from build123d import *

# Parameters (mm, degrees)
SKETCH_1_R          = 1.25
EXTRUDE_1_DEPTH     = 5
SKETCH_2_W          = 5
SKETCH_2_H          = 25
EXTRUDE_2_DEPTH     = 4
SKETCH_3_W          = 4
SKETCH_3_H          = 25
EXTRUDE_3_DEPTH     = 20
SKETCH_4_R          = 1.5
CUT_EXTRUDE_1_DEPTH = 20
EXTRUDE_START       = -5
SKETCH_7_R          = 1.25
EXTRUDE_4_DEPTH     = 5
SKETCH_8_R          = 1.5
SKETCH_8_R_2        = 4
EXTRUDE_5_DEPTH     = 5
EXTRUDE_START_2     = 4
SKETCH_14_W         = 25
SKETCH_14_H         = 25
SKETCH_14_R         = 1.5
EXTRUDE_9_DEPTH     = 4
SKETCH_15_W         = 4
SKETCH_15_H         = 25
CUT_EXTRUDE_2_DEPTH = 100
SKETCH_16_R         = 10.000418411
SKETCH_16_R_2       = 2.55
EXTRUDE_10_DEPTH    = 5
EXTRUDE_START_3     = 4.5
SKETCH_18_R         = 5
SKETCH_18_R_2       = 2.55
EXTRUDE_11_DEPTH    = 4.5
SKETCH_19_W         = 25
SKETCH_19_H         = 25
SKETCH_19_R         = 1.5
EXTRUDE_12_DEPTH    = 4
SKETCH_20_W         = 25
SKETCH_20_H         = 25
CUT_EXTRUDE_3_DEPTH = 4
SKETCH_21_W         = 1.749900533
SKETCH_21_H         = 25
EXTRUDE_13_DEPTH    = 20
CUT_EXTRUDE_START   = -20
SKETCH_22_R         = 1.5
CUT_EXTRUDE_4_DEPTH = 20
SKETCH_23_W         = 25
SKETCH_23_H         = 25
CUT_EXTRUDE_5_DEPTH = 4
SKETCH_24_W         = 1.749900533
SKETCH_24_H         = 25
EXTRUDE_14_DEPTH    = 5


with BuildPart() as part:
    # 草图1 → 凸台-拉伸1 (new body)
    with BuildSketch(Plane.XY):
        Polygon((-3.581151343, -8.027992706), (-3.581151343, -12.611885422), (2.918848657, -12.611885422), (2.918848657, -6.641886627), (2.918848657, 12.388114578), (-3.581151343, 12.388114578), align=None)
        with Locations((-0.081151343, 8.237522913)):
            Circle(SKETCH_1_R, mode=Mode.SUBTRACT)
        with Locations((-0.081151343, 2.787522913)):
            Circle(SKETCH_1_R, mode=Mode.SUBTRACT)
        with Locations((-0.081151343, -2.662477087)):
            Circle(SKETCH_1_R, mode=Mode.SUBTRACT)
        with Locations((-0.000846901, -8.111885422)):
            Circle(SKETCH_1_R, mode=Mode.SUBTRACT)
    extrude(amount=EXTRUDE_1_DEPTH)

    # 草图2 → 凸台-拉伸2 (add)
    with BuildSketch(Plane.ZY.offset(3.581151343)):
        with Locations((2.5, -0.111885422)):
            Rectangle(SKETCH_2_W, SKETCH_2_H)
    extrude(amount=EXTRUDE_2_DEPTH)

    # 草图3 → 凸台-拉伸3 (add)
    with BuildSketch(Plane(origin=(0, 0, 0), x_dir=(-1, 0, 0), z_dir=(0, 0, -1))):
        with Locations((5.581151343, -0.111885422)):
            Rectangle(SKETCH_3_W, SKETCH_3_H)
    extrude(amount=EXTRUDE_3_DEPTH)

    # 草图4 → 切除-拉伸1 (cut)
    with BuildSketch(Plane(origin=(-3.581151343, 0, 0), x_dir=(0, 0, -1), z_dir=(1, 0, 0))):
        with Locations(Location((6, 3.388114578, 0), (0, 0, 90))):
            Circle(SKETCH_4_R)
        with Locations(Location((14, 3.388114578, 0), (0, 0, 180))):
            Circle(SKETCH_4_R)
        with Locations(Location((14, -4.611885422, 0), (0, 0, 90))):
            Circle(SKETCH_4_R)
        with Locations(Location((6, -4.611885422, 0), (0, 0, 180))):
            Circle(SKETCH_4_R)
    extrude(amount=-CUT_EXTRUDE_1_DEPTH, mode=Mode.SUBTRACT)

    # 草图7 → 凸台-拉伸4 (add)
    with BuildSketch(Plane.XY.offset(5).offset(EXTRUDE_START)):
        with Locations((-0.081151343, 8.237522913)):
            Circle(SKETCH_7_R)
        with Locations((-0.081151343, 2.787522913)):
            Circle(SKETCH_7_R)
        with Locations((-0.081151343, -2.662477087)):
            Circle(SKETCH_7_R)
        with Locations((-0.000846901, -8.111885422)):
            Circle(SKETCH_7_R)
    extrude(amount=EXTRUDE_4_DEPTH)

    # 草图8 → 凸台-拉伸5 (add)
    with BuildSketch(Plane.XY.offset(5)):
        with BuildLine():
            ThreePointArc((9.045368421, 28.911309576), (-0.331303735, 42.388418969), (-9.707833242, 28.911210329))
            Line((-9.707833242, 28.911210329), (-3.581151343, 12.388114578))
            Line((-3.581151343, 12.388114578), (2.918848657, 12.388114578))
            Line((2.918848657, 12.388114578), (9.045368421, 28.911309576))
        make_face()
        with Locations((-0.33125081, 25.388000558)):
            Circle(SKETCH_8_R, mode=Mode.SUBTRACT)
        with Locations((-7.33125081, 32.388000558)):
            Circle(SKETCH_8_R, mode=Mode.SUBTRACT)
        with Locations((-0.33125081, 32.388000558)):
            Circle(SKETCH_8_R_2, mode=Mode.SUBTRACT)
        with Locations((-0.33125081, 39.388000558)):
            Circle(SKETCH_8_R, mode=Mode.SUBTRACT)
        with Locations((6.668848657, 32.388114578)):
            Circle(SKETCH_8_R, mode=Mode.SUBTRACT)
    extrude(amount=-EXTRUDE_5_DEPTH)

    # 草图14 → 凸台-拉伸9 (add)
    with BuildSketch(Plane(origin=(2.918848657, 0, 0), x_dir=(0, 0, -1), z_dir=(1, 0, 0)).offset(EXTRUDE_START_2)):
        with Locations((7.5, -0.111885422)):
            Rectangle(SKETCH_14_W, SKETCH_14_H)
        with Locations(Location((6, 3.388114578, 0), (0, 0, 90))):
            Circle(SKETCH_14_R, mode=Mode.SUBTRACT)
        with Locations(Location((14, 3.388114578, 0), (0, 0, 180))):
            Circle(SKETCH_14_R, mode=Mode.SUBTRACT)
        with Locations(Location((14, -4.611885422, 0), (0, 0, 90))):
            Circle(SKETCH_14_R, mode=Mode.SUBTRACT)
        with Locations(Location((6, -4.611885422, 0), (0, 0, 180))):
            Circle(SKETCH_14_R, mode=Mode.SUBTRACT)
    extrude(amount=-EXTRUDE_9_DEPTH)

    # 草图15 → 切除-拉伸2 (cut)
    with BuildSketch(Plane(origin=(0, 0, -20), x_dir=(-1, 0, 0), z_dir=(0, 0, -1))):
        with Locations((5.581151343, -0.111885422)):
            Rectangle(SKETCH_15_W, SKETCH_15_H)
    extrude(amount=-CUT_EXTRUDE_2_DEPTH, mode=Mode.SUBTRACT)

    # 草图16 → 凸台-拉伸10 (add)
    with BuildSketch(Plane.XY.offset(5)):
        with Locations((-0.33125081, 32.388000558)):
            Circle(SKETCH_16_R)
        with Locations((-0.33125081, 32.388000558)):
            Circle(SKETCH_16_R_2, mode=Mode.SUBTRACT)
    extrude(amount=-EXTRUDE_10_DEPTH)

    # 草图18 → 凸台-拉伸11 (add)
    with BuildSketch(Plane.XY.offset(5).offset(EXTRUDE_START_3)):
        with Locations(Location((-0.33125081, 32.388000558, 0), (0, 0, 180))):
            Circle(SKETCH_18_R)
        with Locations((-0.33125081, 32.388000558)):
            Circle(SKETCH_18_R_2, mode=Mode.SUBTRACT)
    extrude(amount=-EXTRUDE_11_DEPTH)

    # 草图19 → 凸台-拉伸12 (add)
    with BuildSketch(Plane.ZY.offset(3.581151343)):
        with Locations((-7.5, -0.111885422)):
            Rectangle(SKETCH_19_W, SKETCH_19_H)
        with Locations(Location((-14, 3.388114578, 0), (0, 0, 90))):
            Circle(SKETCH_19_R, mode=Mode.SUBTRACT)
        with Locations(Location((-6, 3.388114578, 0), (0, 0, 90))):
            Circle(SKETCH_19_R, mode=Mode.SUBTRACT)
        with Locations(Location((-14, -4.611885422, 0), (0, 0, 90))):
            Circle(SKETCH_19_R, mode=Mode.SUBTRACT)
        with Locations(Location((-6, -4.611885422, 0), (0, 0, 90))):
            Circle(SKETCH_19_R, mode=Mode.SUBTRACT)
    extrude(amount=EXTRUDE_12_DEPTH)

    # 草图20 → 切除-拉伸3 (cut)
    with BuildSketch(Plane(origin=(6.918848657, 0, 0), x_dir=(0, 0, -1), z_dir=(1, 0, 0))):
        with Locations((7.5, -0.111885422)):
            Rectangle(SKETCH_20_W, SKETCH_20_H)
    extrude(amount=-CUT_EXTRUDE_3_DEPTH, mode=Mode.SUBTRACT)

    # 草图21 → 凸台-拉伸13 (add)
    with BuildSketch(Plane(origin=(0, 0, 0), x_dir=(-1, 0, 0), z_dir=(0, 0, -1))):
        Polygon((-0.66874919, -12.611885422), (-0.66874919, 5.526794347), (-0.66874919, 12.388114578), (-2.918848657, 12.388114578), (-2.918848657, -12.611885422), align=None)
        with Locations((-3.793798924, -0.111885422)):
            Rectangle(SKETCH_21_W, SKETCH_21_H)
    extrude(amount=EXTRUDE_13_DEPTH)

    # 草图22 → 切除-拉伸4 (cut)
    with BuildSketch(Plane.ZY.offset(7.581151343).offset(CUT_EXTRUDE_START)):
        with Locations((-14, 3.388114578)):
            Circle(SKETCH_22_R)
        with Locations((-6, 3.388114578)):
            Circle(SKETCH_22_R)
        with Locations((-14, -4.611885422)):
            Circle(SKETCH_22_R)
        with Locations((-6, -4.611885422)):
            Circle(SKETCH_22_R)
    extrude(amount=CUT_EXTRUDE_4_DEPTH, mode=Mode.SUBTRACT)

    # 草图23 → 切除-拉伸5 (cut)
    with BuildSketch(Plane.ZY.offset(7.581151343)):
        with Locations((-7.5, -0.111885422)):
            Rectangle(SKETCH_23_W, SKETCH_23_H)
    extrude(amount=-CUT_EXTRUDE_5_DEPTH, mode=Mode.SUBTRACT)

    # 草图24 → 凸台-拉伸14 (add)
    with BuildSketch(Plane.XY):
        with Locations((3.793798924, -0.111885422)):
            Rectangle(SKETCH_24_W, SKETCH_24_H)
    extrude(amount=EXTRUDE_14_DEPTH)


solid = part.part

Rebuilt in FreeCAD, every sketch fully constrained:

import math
import FreeCAD as App
import Part
import Sketcher
Q = App.Units.Quantity


def add_polygon(sketch, points):
    """Adds a closed chain of lines whose ends are joined by coincident constraints."""
    first, n = sketch.GeometryCount, len(points)
    for a, b in zip(points, points[1:] + points[:1]):
        sketch.addGeometry(Part.LineSegment(App.Vector(*a, 0), App.Vector(*b, 0)), False)
    for i in range(n):
        sketch.addConstraint(Sketcher.Constraint("Coincident", first + i, 2, first + (i + 1) % n, 1))

doc = App.newDocument("Part")
body = doc.addObject("PartDesign::Body", "Body")

sketch1 = doc.addObject("Sketcher::SketchObject", "Sketch")
body.addObject(sketch1)
sketch1.AttachmentSupport = (doc.XY_Plane, [""])
sketch1.MapMode = "FlatFace"
add_polygon(sketch1, [(-3.6, -12.6), (2.9, -12.6), (2.9, 12.4), (-3.6, 12.4)])
sketch1.addGeometry(Part.Circle(App.Vector(-0.1, -2.7, 0), App.Vector(0, 0, 1), 1.2), False)
sketch1.addGeometry(Part.Circle(App.Vector(0, -8.1, 0), App.Vector(0, 0, 1), 1.2), False)
sketch1.addGeometry(Part.Circle(App.Vector(-0.1, 2.8, 0), App.Vector(0, 0, 1), 1.2), False)
sketch1.addGeometry(Part.Circle(App.Vector(-0.1, 8.2, 0), App.Vector(0, 0, 1), 1.2), False)
sketch1.addConstraint(Sketcher.Constraint("Horizontal", 0))
sketch1.addConstraint(Sketcher.Constraint("Vertical", 1))
sketch1.addConstraint(Sketcher.Constraint("Horizontal", 2))
sketch1.addConstraint(Sketcher.Constraint("Vertical", 3))
sketch1.addConstraint(Sketcher.Constraint("Equal", 4, 5))
sketch1.addConstraint(Sketcher.Constraint("Equal", 5, 6))
sketch1.addConstraint(Sketcher.Constraint("Equal", 6, 7))
sketch1.addConstraint(Sketcher.Constraint("Vertical", 4, 3, 6, 3))
sketch1.addConstraint(Sketcher.Constraint("Vertical", 6, 3, 7, 3))
sketch1.addConstraint(Sketcher.Constraint("Diameter", 4, Q("2.5 mm")))
sketch1.addConstraint(Sketcher.Constraint("DistanceY", 1, 1, 1, 2, Q("25 mm")))
sketch1.addConstraint(Sketcher.Constraint("DistanceX", 0, 1, 0, 2, Q("6.5 mm")))
sketch1.addConstraint(Sketcher.Constraint("DistanceX", 4, 3, 0, 2, Q("3 mm")))
sketch1.addConstraint(Sketcher.Constraint("DistanceY", 4, 3, 7, 3, Q("10.9 mm")))
sketch1.addConstraint(Sketcher.Constraint("DistanceY", 0, 2, 5, 3, Q("4.5 mm")))
sketch1.addConstraint(Sketcher.Constraint("DistanceY", 4, 3, 6, 3, Q("5.45 mm")))
sketch1.addConstraint(Sketcher.Constraint("DistanceX", 4, 3, -1, 1, Q("0.081151 mm")))
sketch1.addConstraint(Sketcher.Constraint("DistanceY", 5, 3, 4, 3, Q("5.449408 mm")))
sketch1.addConstraint(Sketcher.Constraint("DistanceY", 4, 3, -1, 1, Q("2.662477 mm")))
sketch1.addConstraint(Sketcher.Constraint("DistanceX", 5, 3, -1, 1, Q("0.000847 mm")))
pad1 = doc.addObject("PartDesign::Pad", "Pad")
body.addObject(pad1)
pad1.Profile = sketch1
pad1.Length = 5

sketch2 = doc.addObject("Sketcher::SketchObject", "Sketch001")
body.addObject(sketch2)
sketch2.AttachmentSupport = (doc.YZ_Plane, [""])
sketch2.MapMode = "FlatFace"
sketch2.AttachmentOffset = App.Placement(App.Vector(0, 0, -3.581151), App.Rotation())
add_polygon(sketch2, [(12, 0), (-13, 0), (-13, 5), (12, 5)])
sketch2.addConstraint(Sketcher.Constraint("Horizontal", 0))
sketch2.addConstraint(Sketcher.Constraint("Vertical", 1))
sketch2.addConstraint(Sketcher.Constraint("Horizontal", 2))
sketch2.addConstraint(Sketcher.Constraint("Vertical", 3))
sketch2.addConstraint(Sketcher.Constraint("PointOnObject", 0, 2, -1))
sketch2.addConstraint(Sketcher.Constraint("DistanceX", 0, 2, 0, 1, Q("25 mm")))
sketch2.addConstraint(Sketcher.Constraint("DistanceY", 1, 1, 1, 2, Q("5 mm")))
sketch2.addConstraint(Sketcher.Constraint("DistanceX", 0, 2, -1, 1, Q("12.611885 mm")))
pad2 = doc.addObject("PartDesign::Pad", "Pad001")
body.addObject(pad2)
pad2.Profile = sketch2
pad2.Length = 4
pad2.Reversed = True

sketch3 = doc.addObject("Sketcher::SketchObject", "Sketch002")
body.addObject(sketch3)
sketch3.AttachmentSupport = (doc.XY_Plane, [""])
sketch3.MapMode = "FlatFace"
add_polygon(sketch3, [(-3.6, 12.4), (-3.6, -12.6), (-7.6, -12.6), (-7.6, 12.4)])
sketch3.addConstraint(Sketcher.Constraint("Vertical", 0))
sketch3.addConstraint(Sketcher.Constraint("Horizontal", 1))
sketch3.addConstraint(Sketcher.Constraint("Vertical", 2))
sketch3.addConstraint(Sketcher.Constraint("Horizontal", 3))
sketch3.addConstraint(Sketcher.Constraint("DistanceX", 1, 2, 1, 1, Q("4 mm")))
sketch3.addConstraint(Sketcher.Constraint("DistanceY", 0, 2, 0, 1, Q("25 mm")))
sketch3.addConstraint(Sketcher.Constraint("DistanceX", 0, 2, -1, 1, Q("3.581151 mm")))
sketch3.addConstraint(Sketcher.Constraint("DistanceY", 0, 2, -1, 1, Q("12.611885 mm")))
pad3 = doc.addObject("PartDesign::Pad", "Pad002")
body.addObject(pad3)
pad3.Profile = sketch3
pad3.Length = 20
pad3.Reversed = True

sketch4 = doc.addObject("Sketcher::SketchObject", "Sketch003")
body.addObject(sketch4)
sketch4.AttachmentSupport = (doc.YZ_Plane, [""])
sketch4.MapMode = "FlatFace"
sketch4.AttachmentOffset = App.Placement(App.Vector(0, 0, -3.581151), App.Rotation())
sketch4.addGeometry(Part.Circle(App.Vector(3.4, -6, 0), App.Vector(0, 0, 1), 1.5), False)
sketch4.addGeometry(Part.Circle(App.Vector(3.4, -14, 0), App.Vector(0, 0, 1), 1.5), False)
sketch4.addGeometry(Part.Circle(App.Vector(-4.6, -14, 0), App.Vector(0, 0, 1), 1.5), False)
sketch4.addGeometry(Part.Circle(App.Vector(-4.6, -6, 0), App.Vector(0, 0, 1), 1.5), False)
sketch4.addConstraint(Sketcher.Constraint("Equal", 0, 1))
sketch4.addConstraint(Sketcher.Constraint("Equal", 1, 2))
sketch4.addConstraint(Sketcher.Constraint("Equal", 2, 3))
sketch4.addConstraint(Sketcher.Constraint("Horizontal", 1, 3, 2, 3))
sketch4.addConstraint(Sketcher.Constraint("Horizontal", 0, 3, 3, 3))
sketch4.addConstraint(Sketcher.Constraint("Vertical", 0, 3, 1, 3))
sketch4.addConstraint(Sketcher.Constraint("Vertical", 2, 3, 3, 3))
sketch4.addConstraint(Sketcher.Constraint("Diameter", 0, Q("3 mm")))
sketch4.addConstraint(Sketcher.Constraint("DistanceY", 0, 3, -1, 1, Q("6 mm")))
sketch4.addConstraint(Sketcher.Constraint("DistanceY", 1, 3, -1, 1, Q("14 mm")))
sketch4.addConstraint(Sketcher.Constraint("DistanceX", 2, 3, 1, 3, Q("8 mm")))
sketch4.addConstraint(Sketcher.Constraint("DistanceX", -1, 1, 0, 3, Q("3.388115 mm")))
pocket1 = doc.addObject("PartDesign::Pocket", "Pocket")
body.addObject(pocket1)
pocket1.Profile = sketch4
pocket1.Length = 20

sketch5 = doc.addObject("Sketcher::SketchObject", "Sketch004")
body.addObject(sketch5)
sketch5.AttachmentSupport = (doc.XY_Plane, [""])
sketch5.MapMode = "FlatFace"
sketch5.addGeometry(Part.Circle(App.Vector(-0.1, 8.2, 0), App.Vector(0, 0, 1), 1.2), False)
sketch5.addGeometry(Part.Circle(App.Vector(-0.1, 2.8, 0), App.Vector(0, 0, 1), 1.2), False)
sketch5.addGeometry(Part.Circle(App.Vector(-0.1, -2.7, 0), App.Vector(0, 0, 1), 1.2), False)
sketch5.addGeometry(Part.Circle(App.Vector(0, -8.1, 0), App.Vector(0, 0, 1), 1.2), False)
sketch5.addConstraint(Sketcher.Constraint("Equal", 0, 1))
sketch5.addConstraint(Sketcher.Constraint("Equal", 1, 2))
sketch5.addConstraint(Sketcher.Constraint("Equal", 2, 3))
sketch5.addConstraint(Sketcher.Constraint("Vertical", 0, 3, 1, 3))
sketch5.addConstraint(Sketcher.Constraint("Vertical", 1, 3, 2, 3))
sketch5.addConstraint(Sketcher.Constraint("Diameter", 0, Q("2.5 mm")))
sketch5.addConstraint(Sketcher.Constraint("DistanceY", 2, 3, 0, 3, Q("10.9 mm")))
sketch5.addConstraint(Sketcher.Constraint("DistanceY", 1, 3, 0, 3, Q("5.45 mm")))
sketch5.addConstraint(Sketcher.Constraint("DistanceX", 0, 3, -1, 1, Q("0.081151 mm")))
sketch5.addConstraint(Sketcher.Constraint("DistanceY", 3, 3, 2, 3, Q("5.449408 mm")))
sketch5.addConstraint(Sketcher.Constraint("DistanceY", -1, 1, 0, 3, Q("8.237523 mm")))
sketch5.addConstraint(Sketcher.Constraint("DistanceX", 3, 3, -1, 1, Q("0.000847 mm")))
pad4 = doc.addObject("PartDesign::Pad", "Pad003")
body.addObject(pad4)
pad4.Profile = sketch5
pad4.Length = 5

sketch6 = doc.addObject("Sketcher::SketchObject", "Sketch005")
body.addObject(sketch6)
sketch6.AttachmentSupport = (doc.XY_Plane, [""])
sketch6.MapMode = "FlatFace"
sketch6.AttachmentOffset = App.Placement(App.Vector(0, 0, 5), App.Rotation())
sketch6.addGeometry(Part.ArcOfCircle(Part.Circle(App.Vector(-0.3, 32.4, 0), App.Vector(0, 0, 1), 10), math.radians(-20), math.radians(200)), False)
sketch6.addGeometry(Part.LineSegment(App.Vector(-9.7, 28.9, 0), App.Vector(-3.6, 12.4, 0)), False)
sketch6.addGeometry(Part.LineSegment(App.Vector(-3.6, 12.4, 0), App.Vector(2.9, 12.4, 0)), False)
sketch6.addGeometry(Part.LineSegment(App.Vector(2.9, 12.4, 0), App.Vector(9, 28.9, 0)), False)
sketch6.addGeometry(Part.Circle(App.Vector(-0.3, 25.4, 0), App.Vector(0, 0, 1), 1.5), False)
sketch6.addGeometry(Part.Circle(App.Vector(-7.3, 32.4, 0), App.Vector(0, 0, 1), 1.5), False)
sketch6.addGeometry(Part.Circle(App.Vector(-0.3, 32.4, 0), App.Vector(0, 0, 1), 4), False)
sketch6.addGeometry(Part.Circle(App.Vector(-0.3, 39.4, 0), App.Vector(0, 0, 1), 1.5), False)
sketch6.addGeometry(Part.Circle(App.Vector(6.7, 32.4, 0), App.Vector(0, 0, 1), 1.5), False)
sketch6.addConstraint(Sketcher.Constraint("Tangent", 0, 2, 1, 1))
sketch6.addConstraint(Sketcher.Constraint("Coincident", 1, 2, 2, 1))
sketch6.addConstraint(Sketcher.Constraint("Coincident", 2, 2, 3, 1))
sketch6.addConstraint(Sketcher.Constraint("Tangent", 3, 2, 0, 1))
sketch6.addConstraint(Sketcher.Constraint("Horizontal", 2))
sketch6.addConstraint(Sketcher.Constraint("Coincident", 6, 3, 0, 3))
sketch6.addConstraint(Sketcher.Constraint("Equal", 4, 5))
sketch6.addConstraint(Sketcher.Constraint("Equal", 5, 7))
sketch6.addConstraint(Sketcher.Constraint("Equal", 7, 8))
sketch6.addConstraint(Sketcher.Constraint("Horizontal", 0, 3, 5, 3))
sketch6.addConstraint(Sketcher.Constraint("Vertical", 0, 3, 4, 3))
sketch6.addConstraint(Sketcher.Constraint("Vertical", 6, 3, 7, 3))
sketch6.addConstraint(Sketcher.Constraint("Diameter", 4, Q("3 mm")))
sketch6.addConstraint(Sketcher.Constraint("Diameter", 6, Q("8 mm")))
sketch6.addConstraint(Sketcher.Constraint("DistanceX", 2, 1, 2, 2, Q("6.5 mm")))
sketch6.addConstraint(Sketcher.Constraint("DistanceY", 4, 3, 0, 3, Q("7 mm")))
sketch6.addConstraint(Sketcher.Constraint("DistanceX", 5, 3, 0, 3, Q("7 mm")))
sketch6.addConstraint(Sketcher.Constraint("DistanceY", 0, 3, 7, 3, Q("7 mm")))
sketch6.addConstraint(Sketcher.Constraint("DistanceY", 2, 2, 8, 3, Q("20 mm")))
sketch6.addConstraint(Sketcher.Constraint("Radius", 0, Q("10.000418 mm")))
sketch6.addConstraint(Sketcher.Constraint("DistanceX", 2, 2, 8, 3, Q("3.75 mm")))
sketch6.addConstraint(Sketcher.Constraint("DistanceY", -1, 1, 0, 3, Q("32.388001 mm")))
sketch6.addConstraint(Sketcher.Constraint("Distance", 1, Q("17.622398 mm")))
sketch6.addConstraint(Sketcher.Constraint("DistanceX", 0, 3, 8, 3, Q("7.000099 mm")))
sketch6.addConstraint(Sketcher.Constraint("DistanceX", 0, 3, -1, 1, Q("0.331251 mm")))
pad5 = doc.addObject("PartDesign::Pad", "Pad004")
body.addObject(pad5)
pad5.Profile = sketch6
pad5.Length = 5
pad5.Reversed = True

sketch7 = doc.addObject("Sketcher::SketchObject", "Sketch006")
body.addObject(sketch7)
sketch7.AttachmentSupport = (doc.YZ_Plane, [""])
sketch7.MapMode = "FlatFace"
sketch7.AttachmentOffset = App.Placement(App.Vector(0, 0, 6.918849), App.Rotation())
add_polygon(sketch7, [(12.4, 5), (-12.6, 5), (-12.6, -20), (12.4, -20)])
sketch7.addGeometry(Part.Circle(App.Vector(-4.6, -6, 0), App.Vector(0, 0, 1), 1.5), False)
sketch7.addGeometry(Part.Circle(App.Vector(-4.6, -14, 0), App.Vector(0, 0, 1), 1.5), False)
sketch7.addGeometry(Part.Circle(App.Vector(3.4, -6, 0), App.Vector(0, 0, 1), 1.5), False)
sketch7.addGeometry(Part.Circle(App.Vector(3.4, -14, 0), App.Vector(0, 0, 1), 1.5), False)
sketch7.addConstraint(Sketcher.Constraint("Horizontal", 0))
sketch7.addConstraint(Sketcher.Constraint("Vertical", 1))
sketch7.addConstraint(Sketcher.Constraint("Horizontal", 2))
sketch7.addConstraint(Sketcher.Constraint("Vertical", 3))
sketch7.addConstraint(Sketcher.Constraint("Equal", 4, 5))
sketch7.addConstraint(Sketcher.Constraint("Equal", 5, 6))
sketch7.addConstraint(Sketcher.Constraint("Equal", 6, 7))
sketch7.addConstraint(Sketcher.Constraint("Horizontal", 4, 3, 6, 3))
sketch7.addConstraint(Sketcher.Constraint("Horizontal", 5, 3, 7, 3))
sketch7.addConstraint(Sketcher.Constraint("Vertical", 4, 3, 5, 3))
sketch7.addConstraint(Sketcher.Constraint("Vertical", 6, 3, 7, 3))
sketch7.addConstraint(Sketcher.Constraint("Equal", 2, 1))
sketch7.addConstraint(Sketcher.Constraint("Diameter", 4, Q("3 mm")))
sketch7.addConstraint(Sketcher.Constraint("DistanceX", 0, 2, 0, 1, Q("25 mm")))
sketch7.addConstraint(Sketcher.Constraint("DistanceY", 4, 3, -1, 1, Q("6 mm")))
sketch7.addConstraint(Sketcher.Constraint("DistanceY", 5, 3, -1, 1, Q("14 mm")))
sketch7.addConstraint(Sketcher.Constraint("DistanceY", -1, 1, 0, 2, Q("5 mm")))
sketch7.addConstraint(Sketcher.Constraint("DistanceX", 4, 3, 6, 3, Q("8 mm")))
sketch7.addConstraint(Sketcher.Constraint("DistanceX", 0, 2, 4, 3, Q("8 mm")))
sketch7.addConstraint(Sketcher.Constraint("DistanceX", 4, 3, -1, 1, Q("4.611885 mm")))
pad6 = doc.addObject("PartDesign::Pad", "Pad005")
body.addObject(pad6)
pad6.Profile = sketch7
pad6.Length = 4
pad6.Reversed = True

sketch8 = doc.addObject("Sketcher::SketchObject", "Sketch007")
body.addObject(sketch8)
sketch8.AttachmentSupport = (doc.XY_Plane, [""])
sketch8.MapMode = "FlatFace"
sketch8.AttachmentOffset = App.Placement(App.Vector(0, 0, -20), App.Rotation())
add_polygon(sketch8, [(-3.6, 12.4), (-3.6, -12.6), (-7.6, -12.6), (-7.6, 12.4)])
sketch8.addConstraint(Sketcher.Constraint("Vertical", 0))
sketch8.addConstraint(Sketcher.Constraint("Horizontal", 1))
sketch8.addConstraint(Sketcher.Constraint("Vertical", 2))
sketch8.addConstraint(Sketcher.Constraint("Horizontal", 3))
sketch8.addConstraint(Sketcher.Constraint("DistanceX", 1, 2, 1, 1, Q("4 mm")))
sketch8.addConstraint(Sketcher.Constraint("DistanceY", 0, 2, 0, 1, Q("25 mm")))
sketch8.addConstraint(Sketcher.Constraint("DistanceX", 0, 2, -1, 1, Q("3.581151 mm")))
sketch8.addConstraint(Sketcher.Constraint("DistanceY", 0, 2, -1, 1, Q("12.611885 mm")))
pocket2 = doc.addObject("PartDesign::Pocket", "Pocket001")
body.addObject(pocket2)
pocket2.Profile = sketch8
pocket2.Length = 100
pocket2.Reversed = True

sketch9 = doc.addObject("Sketcher::SketchObject", "Sketch008")
body.addObject(sketch9)
sketch9.AttachmentSupport = (doc.XY_Plane, [""])
sketch9.MapMode = "FlatFace"
sketch9.AttachmentOffset = App.Placement(App.Vector(0, 0, 5), App.Rotation())
sketch9.addGeometry(Part.Circle(App.Vector(-0.3, 32.4, 0), App.Vector(0, 0, 1), 10), False)
sketch9.addGeometry(Part.Circle(App.Vector(-0.3, 32.4, 0), App.Vector(0, 0, 1), 2.5), False)
sketch9.addConstraint(Sketcher.Constraint("Coincident", 1, 3, 0, 3))
sketch9.addConstraint(Sketcher.Constraint("Diameter", 1, Q("5.1 mm")))
sketch9.addConstraint(Sketcher.Constraint("Diameter", 0, Q("20.000837 mm")))
sketch9.addConstraint(Sketcher.Constraint("DistanceY", -1, 1, 0, 3, Q("32.388001 mm")))
sketch9.addConstraint(Sketcher.Constraint("DistanceX", 0, 3, -1, 1, Q("0.331251 mm")))
pad7 = doc.addObject("PartDesign::Pad", "Pad006")
body.addObject(pad7)
pad7.Profile = sketch9
pad7.Length = 5
pad7.Reversed = True

sketch10 = doc.addObject("Sketcher::SketchObject", "Sketch009")
body.addObject(sketch10)
sketch10.AttachmentSupport = (doc.XY_Plane, [""])
sketch10.MapMode = "FlatFace"
sketch10.AttachmentOffset = App.Placement(App.Vector(0, 0, 9.5), App.Rotation())
sketch10.addGeometry(Part.Circle(App.Vector(-0.3, 32.4, 0), App.Vector(0, 0, 1), 5), False)
sketch10.addGeometry(Part.Circle(App.Vector(-0.3, 32.4, 0), App.Vector(0, 0, 1), 2.5), False)
sketch10.addConstraint(Sketcher.Constraint("Coincident", 1, 3, 0, 3))
sketch10.addConstraint(Sketcher.Constraint("Diameter", 0, Q("10 mm")))
sketch10.addConstraint(Sketcher.Constraint("Diameter", 1, Q("5.1 mm")))
sketch10.addConstraint(Sketcher.Constraint("DistanceY", -1, 1, 0, 3, Q("32.388001 mm")))
sketch10.addConstraint(Sketcher.Constraint("DistanceX", 0, 3, -1, 1, Q("0.331251 mm")))
pad8 = doc.addObject("PartDesign::Pad", "Pad007")
body.addObject(pad8)
pad8.Profile = sketch10
pad8.Length = 4.5
pad8.Reversed = True

sketch11 = doc.addObject("Sketcher::SketchObject", "Sketch010")
body.addObject(sketch11)
sketch11.AttachmentSupport = (doc.YZ_Plane, [""])
sketch11.MapMode = "FlatFace"
sketch11.AttachmentOffset = App.Placement(App.Vector(0, 0, -3.581151), App.Rotation())
add_polygon(sketch11, [(12.4, -20), (-12.6, -20), (-12.6, 5), (12.4, 5)])
sketch11.addGeometry(Part.Circle(App.Vector(-4.6, -14, 0), App.Vector(0, 0, 1), 1.5), False)
sketch11.addGeometry(Part.Circle(App.Vector(-4.6, -6, 0), App.Vector(0, 0, 1), 1.5), False)
sketch11.addGeometry(Part.Circle(App.Vector(3.4, -14, 0), App.Vector(0, 0, 1), 1.5), False)
sketch11.addGeometry(Part.Circle(App.Vector(3.4, -6, 0), App.Vector(0, 0, 1), 1.5), False)
sketch11.addConstraint(Sketcher.Constraint("Horizontal", 0))
sketch11.addConstraint(Sketcher.Constraint("Vertical", 1))
sketch11.addConstraint(Sketcher.Constraint("Horizontal", 2))
sketch11.addConstraint(Sketcher.Constraint("Vertical", 3))
sketch11.addConstraint(Sketcher.Constraint("Equal", 4, 5))
sketch11.addConstraint(Sketcher.Constraint("Equal", 5, 6))
sketch11.addConstraint(Sketcher.Constraint("Equal", 6, 7))
sketch11.addConstraint(Sketcher.Constraint("Horizontal", 4, 3, 6, 3))
sketch11.addConstraint(Sketcher.Constraint("Horizontal", 5, 3, 7, 3))
sketch11.addConstraint(Sketcher.Constraint("Vertical", 4, 3, 5, 3))
sketch11.addConstraint(Sketcher.Constraint("Vertical", 6, 3, 7, 3))
sketch11.addConstraint(Sketcher.Constraint("Equal", 2, 1))
sketch11.addConstraint(Sketcher.Constraint("Diameter", 4, Q("3 mm")))
sketch11.addConstraint(Sketcher.Constraint("DistanceX", 0, 2, 0, 1, Q("25 mm")))
sketch11.addConstraint(Sketcher.Constraint("DistanceY", 4, 3, -1, 1, Q("14 mm")))
sketch11.addConstraint(Sketcher.Constraint("DistanceY", 5, 3, -1, 1, Q("6 mm")))
sketch11.addConstraint(Sketcher.Constraint("DistanceY", 0, 2, -1, 1, Q("20 mm")))
sketch11.addConstraint(Sketcher.Constraint("DistanceX", 4, 3, 6, 3, Q("8 mm")))
sketch11.addConstraint(Sketcher.Constraint("DistanceX", 0, 2, 4, 3, Q("8 mm")))
sketch11.addConstraint(Sketcher.Constraint("DistanceX", 4, 3, -1, 1, Q("4.611885 mm")))
pad9 = doc.addObject("PartDesign::Pad", "Pad008")
body.addObject(pad9)
pad9.Profile = sketch11
pad9.Length = 4
pad9.Reversed = True

sketch12 = doc.addObject("Sketcher::SketchObject", "Sketch011")
body.addObject(sketch12)
sketch12.AttachmentSupport = (doc.YZ_Plane, [""])
sketch12.MapMode = "FlatFace"
sketch12.AttachmentOffset = App.Placement(App.Vector(0, 0, 6.918849), App.Rotation())
add_polygon(sketch12, [(12, 5), (-13, 5), (-13, -20), (12, -20)])
sketch12.addConstraint(Sketcher.Constraint("Horizontal", 0))
sketch12.addConstraint(Sketcher.Constraint("Vertical", 1))
sketch12.addConstraint(Sketcher.Constraint("Horizontal", 2))
sketch12.addConstraint(Sketcher.Constraint("Vertical", 3))
sketch12.addConstraint(Sketcher.Constraint("Equal", 2, 1))
sketch12.addConstraint(Sketcher.Constraint("DistanceX", 0, 2, 0, 1, Q("25 mm")))
sketch12.addConstraint(Sketcher.Constraint("DistanceY", -1, 1, 0, 2, Q("5 mm")))
sketch12.addConstraint(Sketcher.Constraint("DistanceX", 0, 2, -1, 1, Q("12.611885 mm")))
pocket3 = doc.addObject("PartDesign::Pocket", "Pocket002")
body.addObject(pocket3)
pocket3.Profile = sketch12
pocket3.Length = 4

sketch13 = doc.addObject("Sketcher::SketchObject", "Sketch012")
body.addObject(sketch13)
sketch13.AttachmentSupport = (doc.XY_Plane, [""])
sketch13.MapMode = "FlatFace"
add_polygon(sketch13, [(0.7, -12.6), (0.7, 12.4), (4.7, 12.4), (4.7, -12.6)])
sketch13.addConstraint(Sketcher.Constraint("Vertical", 0))
sketch13.addConstraint(Sketcher.Constraint("Horizontal", 1))
sketch13.addConstraint(Sketcher.Constraint("Vertical", 2))
sketch13.addConstraint(Sketcher.Constraint("Horizontal", 3))
sketch13.addConstraint(Sketcher.Constraint("DistanceX", 1, 1, 1, 2, Q("4 mm")))
sketch13.addConstraint(Sketcher.Constraint("DistanceY", 0, 1, 0, 2, Q("25 mm")))
sketch13.addConstraint(Sketcher.Constraint("DistanceX", -1, 1, 0, 2, Q("0.668749 mm")))
sketch13.addConstraint(Sketcher.Constraint("DistanceY", -1, 1, 0, 2, Q("12.388115 mm")))
pad10 = doc.addObject("PartDesign::Pad", "Pad009")
body.addObject(pad10)
pad10.Profile = sketch13
pad10.Length = 20
pad10.Reversed = True

sketch14 = doc.addObject("Sketcher::SketchObject", "Sketch013")
body.addObject(sketch14)
sketch14.AttachmentSupport = (doc.YZ_Plane, [""])
sketch14.MapMode = "FlatFace"
sketch14.AttachmentOffset = App.Placement(App.Vector(0, 0, 12.418849), App.Rotation())
sketch14.addGeometry(Part.Circle(App.Vector(3.4, -14, 0), App.Vector(0, 0, 1), 1.5), False)
sketch14.addGeometry(Part.Circle(App.Vector(3.4, -6, 0), App.Vector(0, 0, 1), 1.5), False)
sketch14.addGeometry(Part.Circle(App.Vector(-4.6, -14, 0), App.Vector(0, 0, 1), 1.5), False)
sketch14.addGeometry(Part.Circle(App.Vector(-4.6, -6, 0), App.Vector(0, 0, 1), 1.5), False)
sketch14.addConstraint(Sketcher.Constraint("Equal", 0, 1))
sketch14.addConstraint(Sketcher.Constraint("Equal", 1, 2))
sketch14.addConstraint(Sketcher.Constraint("Equal", 2, 3))
sketch14.addConstraint(Sketcher.Constraint("Horizontal", 0, 3, 2, 3))
sketch14.addConstraint(Sketcher.Constraint("Horizontal", 1, 3, 3, 3))
sketch14.addConstraint(Sketcher.Constraint("Vertical", 0, 3, 1, 3))
sketch14.addConstraint(Sketcher.Constraint("Vertical", 2, 3, 3, 3))
sketch14.addConstraint(Sketcher.Constraint("Diameter", 0, Q("3 mm")))
sketch14.addConstraint(Sketcher.Constraint("DistanceY", 0, 3, -1, 1, Q("14 mm")))
sketch14.addConstraint(Sketcher.Constraint("DistanceY", 1, 3, -1, 1, Q("6 mm")))
sketch14.addConstraint(Sketcher.Constraint("DistanceX", 2, 3, 0, 3, Q("8 mm")))
sketch14.addConstraint(Sketcher.Constraint("DistanceX", -1, 1, 0, 3, Q("3.388115 mm")))
pocket4 = doc.addObject("PartDesign::Pocket", "Pocket003")
body.addObject(pocket4)
pocket4.Profile = sketch14
pocket4.Length = 20

sketch15 = doc.addObject("Sketcher::SketchObject", "Sketch014")
body.addObject(sketch15)
sketch15.AttachmentSupport = (doc.YZ_Plane, [""])
sketch15.MapMode = "FlatFace"
sketch15.AttachmentOffset = App.Placement(App.Vector(0, 0, -7.581151), App.Rotation())
add_polygon(sketch15, [(12, -20), (-13, -20), (-13, 5), (12, 5)])
sketch15.addConstraint(Sketcher.Constraint("Horizontal", 0))
sketch15.addConstraint(Sketcher.Constraint("Vertical", 1))
sketch15.addConstraint(Sketcher.Constraint("Horizontal", 2))
sketch15.addConstraint(Sketcher.Constraint("Vertical", 3))
sketch15.addConstraint(Sketcher.Constraint("Equal", 2, 1))
sketch15.addConstraint(Sketcher.Constraint("DistanceX", 0, 2, 0, 1, Q("25 mm")))
sketch15.addConstraint(Sketcher.Constraint("DistanceY", 0, 2, -1, 1, Q("20 mm")))
sketch15.addConstraint(Sketcher.Constraint("DistanceX", 0, 2, -1, 1, Q("12.611885 mm")))
pocket5 = doc.addObject("PartDesign::Pocket", "Pocket004")
body.addObject(pocket5)
pocket5.Profile = sketch15
pocket5.Length = 4
pocket5.Reversed = True

sketch16 = doc.addObject("Sketcher::SketchObject", "Sketch015")
body.addObject(sketch16)
sketch16.AttachmentSupport = (doc.XY_Plane, [""])
sketch16.MapMode = "FlatFace"
add_polygon(sketch16, [(2.9, 12.4), (2.9, -12.6), (4.7, -12.6), (4.7, 12.4)])
sketch16.addConstraint(Sketcher.Constraint("Vertical", 0))
sketch16.addConstraint(Sketcher.Constraint("Horizontal", 1))
sketch16.addConstraint(Sketcher.Constraint("Vertical", 2))
sketch16.addConstraint(Sketcher.Constraint("Horizontal", 3))
sketch16.addConstraint(Sketcher.Constraint("DistanceY", 0, 2, 0, 1, Q("25 mm")))
sketch16.addConstraint(Sketcher.Constraint("DistanceX", 1, 1, 1, 2, Q("1.749901 mm")))
sketch16.addConstraint(Sketcher.Constraint("DistanceX", -1, 1, 0, 2, Q("2.918849 mm")))
sketch16.addConstraint(Sketcher.Constraint("DistanceY", 0, 2, -1, 1, Q("12.611885 mm")))
pad11 = doc.addObject("PartDesign::Pad", "Pad010")
body.addObject(pad11)
pad11.Profile = sketch16
pad11.Length = 5

doc.recompute()
